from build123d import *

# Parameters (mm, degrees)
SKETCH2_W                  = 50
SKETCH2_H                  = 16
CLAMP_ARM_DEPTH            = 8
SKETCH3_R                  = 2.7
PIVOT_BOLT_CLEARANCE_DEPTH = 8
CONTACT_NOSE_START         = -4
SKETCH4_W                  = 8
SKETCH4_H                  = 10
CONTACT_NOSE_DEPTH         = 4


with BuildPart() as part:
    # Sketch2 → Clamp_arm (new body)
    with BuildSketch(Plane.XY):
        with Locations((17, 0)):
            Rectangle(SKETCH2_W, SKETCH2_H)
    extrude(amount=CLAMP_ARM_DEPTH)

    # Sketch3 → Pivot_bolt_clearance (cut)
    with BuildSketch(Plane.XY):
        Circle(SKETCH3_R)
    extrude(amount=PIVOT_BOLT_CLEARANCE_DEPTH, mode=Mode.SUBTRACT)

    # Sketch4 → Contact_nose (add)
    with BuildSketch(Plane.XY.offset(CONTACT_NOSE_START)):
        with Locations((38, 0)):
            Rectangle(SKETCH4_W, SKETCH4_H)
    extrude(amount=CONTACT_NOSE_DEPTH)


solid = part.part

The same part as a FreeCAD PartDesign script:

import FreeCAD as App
import Part
import Sketcher
Q = App.Units.Quantity

doc = App.newDocument("Part")
body = doc.addObject("PartDesign::Body", "Body")

sketch1 = body.newObject("Sketcher::SketchObject", "Sketch")
sketch1.AttachmentSupport = (doc.getObject("XY_Plane"), [""])
sketch1.MapMode = "FlatFace"
sketch1.addGeometry([
    Part.LineSegment(App.Vector(-8, 8, 0), App.Vector(-8, -8, 0)),
    Part.LineSegment(App.Vector(-8, -8, 0), App.Vector(42, -8, 0)),
    Part.LineSegment(App.Vector(42, -8, 0), App.Vector(42, 8, 0)),
    Part.LineSegment(App.Vector(42, 8, 0), App.Vector(-8, 8, 0)),
], False)
sketch1.addConstraint([
    Sketcher.Constraint("Coincident", 0, 2, 1, 1),
    Sketcher.Constraint("Coincident", 1, 2, 2, 1),
    Sketcher.Constraint("Coincident", 2, 2, 3, 1),
    Sketcher.Constraint("Coincident", 3, 2, 0, 1),
    Sketcher.Constraint("Vertical", 0),
    Sketcher.Constraint("Horizontal", 1),
    Sketcher.Constraint("Vertical", 2),
    Sketcher.Constraint("Horizontal", 3),
    Sketcher.Constraint("DistanceX", 1, 1, 1, 2, Q("50 mm")),
    Sketcher.Constraint("DistanceY", 0, 2, 0, 1, Q("16 mm")),
    Sketcher.Constraint("DistanceX", 0, 2, -1, 1, Q("8 mm")),
    Sketcher.Constraint("DistanceY", 0, 2, -1, 1, Q("8 mm")),
])
pad1 = body.newObject("PartDesign::Pad", "Pad")
pad1.Profile = sketch1
pad1.Length = 8

sketch2 = body.newObject("Sketcher::SketchObject", "Sketch001")
sketch2.AttachmentSupport = (doc.getObject("XY_Plane"), [""])
sketch2.MapMode = "FlatFace"
sketch2.addGeometry(Part.Circle(App.Vector(0, 0, 0), App.Vector(0, 0, 1), 2.7), False)
sketch2.addConstraint([
    Sketcher.Constraint("Coincident", 0, 3, -1, 1),
    Sketcher.Constraint("Diameter", 0, Q("5.4 mm")),
])
pocket1 = body.newObject("PartDesign::Pocket", "Pocket")
pocket1.Profile = sketch2
pocket1.Length = 8
pocket1.Reversed = True

sketch3 = body.newObject("Sketcher::SketchObject", "Sketch002")
sketch3.AttachmentSupport = (doc.getObject("XY_Plane"), [""])
sketch3.MapMode = "FlatFace"
sketch3.AttachmentOffset = App.Placement(App.Vector(0, 0, -4), App.Rotation())
sketch3.addGeometry([
    Part.LineSegment(App.Vector(34, 5, 0), App.Vector(34, -5, 0)),
    Part.LineSegment(App.Vector(34, -5, 0), App.Vector(42, -5, 0)),
    Part.LineSegment(App.Vector(42, -5, 0), App.Vector(42, 5, 0)),
    Part.LineSegment(App.Vector(42, 5, 0), App.Vector(34, 5, 0)),
], False)
sketch3.addConstraint([
    Sketcher.Constraint("Coincident", 0, 2, 1, 1),
    Sketcher.Constraint("Coincident", 1, 2, 2, 1),
    Sketcher.Constraint("Coincident", 2, 2, 3, 1),
    Sketcher.Constraint("Coincident", 3, 2, 0, 1),
    Sketcher.Constraint("Vertical", 0),
    Sketcher.Constraint("Horizontal", 1),
    Sketcher.Constraint("Vertical", 2),
    Sketcher.Constraint("Horizontal", 3),
    Sketcher.Constraint("DistanceX", 1, 1, 1, 2, Q("8 mm")),
    Sketcher.Constraint("DistanceY", 0, 2, 0, 1, Q("10 mm")),
    Sketcher.Constraint("DistanceX", -1, 1, 0, 2, Q("34 mm")),
    Sketcher.Constraint("DistanceY", 0, 2, -1, 1, Q("5 mm")),
])
pad2 = body.newObject("PartDesign::Pad", "Pad001")
pad2.Profile = sketch3
pad2.Length = 4

doc.recompute()
